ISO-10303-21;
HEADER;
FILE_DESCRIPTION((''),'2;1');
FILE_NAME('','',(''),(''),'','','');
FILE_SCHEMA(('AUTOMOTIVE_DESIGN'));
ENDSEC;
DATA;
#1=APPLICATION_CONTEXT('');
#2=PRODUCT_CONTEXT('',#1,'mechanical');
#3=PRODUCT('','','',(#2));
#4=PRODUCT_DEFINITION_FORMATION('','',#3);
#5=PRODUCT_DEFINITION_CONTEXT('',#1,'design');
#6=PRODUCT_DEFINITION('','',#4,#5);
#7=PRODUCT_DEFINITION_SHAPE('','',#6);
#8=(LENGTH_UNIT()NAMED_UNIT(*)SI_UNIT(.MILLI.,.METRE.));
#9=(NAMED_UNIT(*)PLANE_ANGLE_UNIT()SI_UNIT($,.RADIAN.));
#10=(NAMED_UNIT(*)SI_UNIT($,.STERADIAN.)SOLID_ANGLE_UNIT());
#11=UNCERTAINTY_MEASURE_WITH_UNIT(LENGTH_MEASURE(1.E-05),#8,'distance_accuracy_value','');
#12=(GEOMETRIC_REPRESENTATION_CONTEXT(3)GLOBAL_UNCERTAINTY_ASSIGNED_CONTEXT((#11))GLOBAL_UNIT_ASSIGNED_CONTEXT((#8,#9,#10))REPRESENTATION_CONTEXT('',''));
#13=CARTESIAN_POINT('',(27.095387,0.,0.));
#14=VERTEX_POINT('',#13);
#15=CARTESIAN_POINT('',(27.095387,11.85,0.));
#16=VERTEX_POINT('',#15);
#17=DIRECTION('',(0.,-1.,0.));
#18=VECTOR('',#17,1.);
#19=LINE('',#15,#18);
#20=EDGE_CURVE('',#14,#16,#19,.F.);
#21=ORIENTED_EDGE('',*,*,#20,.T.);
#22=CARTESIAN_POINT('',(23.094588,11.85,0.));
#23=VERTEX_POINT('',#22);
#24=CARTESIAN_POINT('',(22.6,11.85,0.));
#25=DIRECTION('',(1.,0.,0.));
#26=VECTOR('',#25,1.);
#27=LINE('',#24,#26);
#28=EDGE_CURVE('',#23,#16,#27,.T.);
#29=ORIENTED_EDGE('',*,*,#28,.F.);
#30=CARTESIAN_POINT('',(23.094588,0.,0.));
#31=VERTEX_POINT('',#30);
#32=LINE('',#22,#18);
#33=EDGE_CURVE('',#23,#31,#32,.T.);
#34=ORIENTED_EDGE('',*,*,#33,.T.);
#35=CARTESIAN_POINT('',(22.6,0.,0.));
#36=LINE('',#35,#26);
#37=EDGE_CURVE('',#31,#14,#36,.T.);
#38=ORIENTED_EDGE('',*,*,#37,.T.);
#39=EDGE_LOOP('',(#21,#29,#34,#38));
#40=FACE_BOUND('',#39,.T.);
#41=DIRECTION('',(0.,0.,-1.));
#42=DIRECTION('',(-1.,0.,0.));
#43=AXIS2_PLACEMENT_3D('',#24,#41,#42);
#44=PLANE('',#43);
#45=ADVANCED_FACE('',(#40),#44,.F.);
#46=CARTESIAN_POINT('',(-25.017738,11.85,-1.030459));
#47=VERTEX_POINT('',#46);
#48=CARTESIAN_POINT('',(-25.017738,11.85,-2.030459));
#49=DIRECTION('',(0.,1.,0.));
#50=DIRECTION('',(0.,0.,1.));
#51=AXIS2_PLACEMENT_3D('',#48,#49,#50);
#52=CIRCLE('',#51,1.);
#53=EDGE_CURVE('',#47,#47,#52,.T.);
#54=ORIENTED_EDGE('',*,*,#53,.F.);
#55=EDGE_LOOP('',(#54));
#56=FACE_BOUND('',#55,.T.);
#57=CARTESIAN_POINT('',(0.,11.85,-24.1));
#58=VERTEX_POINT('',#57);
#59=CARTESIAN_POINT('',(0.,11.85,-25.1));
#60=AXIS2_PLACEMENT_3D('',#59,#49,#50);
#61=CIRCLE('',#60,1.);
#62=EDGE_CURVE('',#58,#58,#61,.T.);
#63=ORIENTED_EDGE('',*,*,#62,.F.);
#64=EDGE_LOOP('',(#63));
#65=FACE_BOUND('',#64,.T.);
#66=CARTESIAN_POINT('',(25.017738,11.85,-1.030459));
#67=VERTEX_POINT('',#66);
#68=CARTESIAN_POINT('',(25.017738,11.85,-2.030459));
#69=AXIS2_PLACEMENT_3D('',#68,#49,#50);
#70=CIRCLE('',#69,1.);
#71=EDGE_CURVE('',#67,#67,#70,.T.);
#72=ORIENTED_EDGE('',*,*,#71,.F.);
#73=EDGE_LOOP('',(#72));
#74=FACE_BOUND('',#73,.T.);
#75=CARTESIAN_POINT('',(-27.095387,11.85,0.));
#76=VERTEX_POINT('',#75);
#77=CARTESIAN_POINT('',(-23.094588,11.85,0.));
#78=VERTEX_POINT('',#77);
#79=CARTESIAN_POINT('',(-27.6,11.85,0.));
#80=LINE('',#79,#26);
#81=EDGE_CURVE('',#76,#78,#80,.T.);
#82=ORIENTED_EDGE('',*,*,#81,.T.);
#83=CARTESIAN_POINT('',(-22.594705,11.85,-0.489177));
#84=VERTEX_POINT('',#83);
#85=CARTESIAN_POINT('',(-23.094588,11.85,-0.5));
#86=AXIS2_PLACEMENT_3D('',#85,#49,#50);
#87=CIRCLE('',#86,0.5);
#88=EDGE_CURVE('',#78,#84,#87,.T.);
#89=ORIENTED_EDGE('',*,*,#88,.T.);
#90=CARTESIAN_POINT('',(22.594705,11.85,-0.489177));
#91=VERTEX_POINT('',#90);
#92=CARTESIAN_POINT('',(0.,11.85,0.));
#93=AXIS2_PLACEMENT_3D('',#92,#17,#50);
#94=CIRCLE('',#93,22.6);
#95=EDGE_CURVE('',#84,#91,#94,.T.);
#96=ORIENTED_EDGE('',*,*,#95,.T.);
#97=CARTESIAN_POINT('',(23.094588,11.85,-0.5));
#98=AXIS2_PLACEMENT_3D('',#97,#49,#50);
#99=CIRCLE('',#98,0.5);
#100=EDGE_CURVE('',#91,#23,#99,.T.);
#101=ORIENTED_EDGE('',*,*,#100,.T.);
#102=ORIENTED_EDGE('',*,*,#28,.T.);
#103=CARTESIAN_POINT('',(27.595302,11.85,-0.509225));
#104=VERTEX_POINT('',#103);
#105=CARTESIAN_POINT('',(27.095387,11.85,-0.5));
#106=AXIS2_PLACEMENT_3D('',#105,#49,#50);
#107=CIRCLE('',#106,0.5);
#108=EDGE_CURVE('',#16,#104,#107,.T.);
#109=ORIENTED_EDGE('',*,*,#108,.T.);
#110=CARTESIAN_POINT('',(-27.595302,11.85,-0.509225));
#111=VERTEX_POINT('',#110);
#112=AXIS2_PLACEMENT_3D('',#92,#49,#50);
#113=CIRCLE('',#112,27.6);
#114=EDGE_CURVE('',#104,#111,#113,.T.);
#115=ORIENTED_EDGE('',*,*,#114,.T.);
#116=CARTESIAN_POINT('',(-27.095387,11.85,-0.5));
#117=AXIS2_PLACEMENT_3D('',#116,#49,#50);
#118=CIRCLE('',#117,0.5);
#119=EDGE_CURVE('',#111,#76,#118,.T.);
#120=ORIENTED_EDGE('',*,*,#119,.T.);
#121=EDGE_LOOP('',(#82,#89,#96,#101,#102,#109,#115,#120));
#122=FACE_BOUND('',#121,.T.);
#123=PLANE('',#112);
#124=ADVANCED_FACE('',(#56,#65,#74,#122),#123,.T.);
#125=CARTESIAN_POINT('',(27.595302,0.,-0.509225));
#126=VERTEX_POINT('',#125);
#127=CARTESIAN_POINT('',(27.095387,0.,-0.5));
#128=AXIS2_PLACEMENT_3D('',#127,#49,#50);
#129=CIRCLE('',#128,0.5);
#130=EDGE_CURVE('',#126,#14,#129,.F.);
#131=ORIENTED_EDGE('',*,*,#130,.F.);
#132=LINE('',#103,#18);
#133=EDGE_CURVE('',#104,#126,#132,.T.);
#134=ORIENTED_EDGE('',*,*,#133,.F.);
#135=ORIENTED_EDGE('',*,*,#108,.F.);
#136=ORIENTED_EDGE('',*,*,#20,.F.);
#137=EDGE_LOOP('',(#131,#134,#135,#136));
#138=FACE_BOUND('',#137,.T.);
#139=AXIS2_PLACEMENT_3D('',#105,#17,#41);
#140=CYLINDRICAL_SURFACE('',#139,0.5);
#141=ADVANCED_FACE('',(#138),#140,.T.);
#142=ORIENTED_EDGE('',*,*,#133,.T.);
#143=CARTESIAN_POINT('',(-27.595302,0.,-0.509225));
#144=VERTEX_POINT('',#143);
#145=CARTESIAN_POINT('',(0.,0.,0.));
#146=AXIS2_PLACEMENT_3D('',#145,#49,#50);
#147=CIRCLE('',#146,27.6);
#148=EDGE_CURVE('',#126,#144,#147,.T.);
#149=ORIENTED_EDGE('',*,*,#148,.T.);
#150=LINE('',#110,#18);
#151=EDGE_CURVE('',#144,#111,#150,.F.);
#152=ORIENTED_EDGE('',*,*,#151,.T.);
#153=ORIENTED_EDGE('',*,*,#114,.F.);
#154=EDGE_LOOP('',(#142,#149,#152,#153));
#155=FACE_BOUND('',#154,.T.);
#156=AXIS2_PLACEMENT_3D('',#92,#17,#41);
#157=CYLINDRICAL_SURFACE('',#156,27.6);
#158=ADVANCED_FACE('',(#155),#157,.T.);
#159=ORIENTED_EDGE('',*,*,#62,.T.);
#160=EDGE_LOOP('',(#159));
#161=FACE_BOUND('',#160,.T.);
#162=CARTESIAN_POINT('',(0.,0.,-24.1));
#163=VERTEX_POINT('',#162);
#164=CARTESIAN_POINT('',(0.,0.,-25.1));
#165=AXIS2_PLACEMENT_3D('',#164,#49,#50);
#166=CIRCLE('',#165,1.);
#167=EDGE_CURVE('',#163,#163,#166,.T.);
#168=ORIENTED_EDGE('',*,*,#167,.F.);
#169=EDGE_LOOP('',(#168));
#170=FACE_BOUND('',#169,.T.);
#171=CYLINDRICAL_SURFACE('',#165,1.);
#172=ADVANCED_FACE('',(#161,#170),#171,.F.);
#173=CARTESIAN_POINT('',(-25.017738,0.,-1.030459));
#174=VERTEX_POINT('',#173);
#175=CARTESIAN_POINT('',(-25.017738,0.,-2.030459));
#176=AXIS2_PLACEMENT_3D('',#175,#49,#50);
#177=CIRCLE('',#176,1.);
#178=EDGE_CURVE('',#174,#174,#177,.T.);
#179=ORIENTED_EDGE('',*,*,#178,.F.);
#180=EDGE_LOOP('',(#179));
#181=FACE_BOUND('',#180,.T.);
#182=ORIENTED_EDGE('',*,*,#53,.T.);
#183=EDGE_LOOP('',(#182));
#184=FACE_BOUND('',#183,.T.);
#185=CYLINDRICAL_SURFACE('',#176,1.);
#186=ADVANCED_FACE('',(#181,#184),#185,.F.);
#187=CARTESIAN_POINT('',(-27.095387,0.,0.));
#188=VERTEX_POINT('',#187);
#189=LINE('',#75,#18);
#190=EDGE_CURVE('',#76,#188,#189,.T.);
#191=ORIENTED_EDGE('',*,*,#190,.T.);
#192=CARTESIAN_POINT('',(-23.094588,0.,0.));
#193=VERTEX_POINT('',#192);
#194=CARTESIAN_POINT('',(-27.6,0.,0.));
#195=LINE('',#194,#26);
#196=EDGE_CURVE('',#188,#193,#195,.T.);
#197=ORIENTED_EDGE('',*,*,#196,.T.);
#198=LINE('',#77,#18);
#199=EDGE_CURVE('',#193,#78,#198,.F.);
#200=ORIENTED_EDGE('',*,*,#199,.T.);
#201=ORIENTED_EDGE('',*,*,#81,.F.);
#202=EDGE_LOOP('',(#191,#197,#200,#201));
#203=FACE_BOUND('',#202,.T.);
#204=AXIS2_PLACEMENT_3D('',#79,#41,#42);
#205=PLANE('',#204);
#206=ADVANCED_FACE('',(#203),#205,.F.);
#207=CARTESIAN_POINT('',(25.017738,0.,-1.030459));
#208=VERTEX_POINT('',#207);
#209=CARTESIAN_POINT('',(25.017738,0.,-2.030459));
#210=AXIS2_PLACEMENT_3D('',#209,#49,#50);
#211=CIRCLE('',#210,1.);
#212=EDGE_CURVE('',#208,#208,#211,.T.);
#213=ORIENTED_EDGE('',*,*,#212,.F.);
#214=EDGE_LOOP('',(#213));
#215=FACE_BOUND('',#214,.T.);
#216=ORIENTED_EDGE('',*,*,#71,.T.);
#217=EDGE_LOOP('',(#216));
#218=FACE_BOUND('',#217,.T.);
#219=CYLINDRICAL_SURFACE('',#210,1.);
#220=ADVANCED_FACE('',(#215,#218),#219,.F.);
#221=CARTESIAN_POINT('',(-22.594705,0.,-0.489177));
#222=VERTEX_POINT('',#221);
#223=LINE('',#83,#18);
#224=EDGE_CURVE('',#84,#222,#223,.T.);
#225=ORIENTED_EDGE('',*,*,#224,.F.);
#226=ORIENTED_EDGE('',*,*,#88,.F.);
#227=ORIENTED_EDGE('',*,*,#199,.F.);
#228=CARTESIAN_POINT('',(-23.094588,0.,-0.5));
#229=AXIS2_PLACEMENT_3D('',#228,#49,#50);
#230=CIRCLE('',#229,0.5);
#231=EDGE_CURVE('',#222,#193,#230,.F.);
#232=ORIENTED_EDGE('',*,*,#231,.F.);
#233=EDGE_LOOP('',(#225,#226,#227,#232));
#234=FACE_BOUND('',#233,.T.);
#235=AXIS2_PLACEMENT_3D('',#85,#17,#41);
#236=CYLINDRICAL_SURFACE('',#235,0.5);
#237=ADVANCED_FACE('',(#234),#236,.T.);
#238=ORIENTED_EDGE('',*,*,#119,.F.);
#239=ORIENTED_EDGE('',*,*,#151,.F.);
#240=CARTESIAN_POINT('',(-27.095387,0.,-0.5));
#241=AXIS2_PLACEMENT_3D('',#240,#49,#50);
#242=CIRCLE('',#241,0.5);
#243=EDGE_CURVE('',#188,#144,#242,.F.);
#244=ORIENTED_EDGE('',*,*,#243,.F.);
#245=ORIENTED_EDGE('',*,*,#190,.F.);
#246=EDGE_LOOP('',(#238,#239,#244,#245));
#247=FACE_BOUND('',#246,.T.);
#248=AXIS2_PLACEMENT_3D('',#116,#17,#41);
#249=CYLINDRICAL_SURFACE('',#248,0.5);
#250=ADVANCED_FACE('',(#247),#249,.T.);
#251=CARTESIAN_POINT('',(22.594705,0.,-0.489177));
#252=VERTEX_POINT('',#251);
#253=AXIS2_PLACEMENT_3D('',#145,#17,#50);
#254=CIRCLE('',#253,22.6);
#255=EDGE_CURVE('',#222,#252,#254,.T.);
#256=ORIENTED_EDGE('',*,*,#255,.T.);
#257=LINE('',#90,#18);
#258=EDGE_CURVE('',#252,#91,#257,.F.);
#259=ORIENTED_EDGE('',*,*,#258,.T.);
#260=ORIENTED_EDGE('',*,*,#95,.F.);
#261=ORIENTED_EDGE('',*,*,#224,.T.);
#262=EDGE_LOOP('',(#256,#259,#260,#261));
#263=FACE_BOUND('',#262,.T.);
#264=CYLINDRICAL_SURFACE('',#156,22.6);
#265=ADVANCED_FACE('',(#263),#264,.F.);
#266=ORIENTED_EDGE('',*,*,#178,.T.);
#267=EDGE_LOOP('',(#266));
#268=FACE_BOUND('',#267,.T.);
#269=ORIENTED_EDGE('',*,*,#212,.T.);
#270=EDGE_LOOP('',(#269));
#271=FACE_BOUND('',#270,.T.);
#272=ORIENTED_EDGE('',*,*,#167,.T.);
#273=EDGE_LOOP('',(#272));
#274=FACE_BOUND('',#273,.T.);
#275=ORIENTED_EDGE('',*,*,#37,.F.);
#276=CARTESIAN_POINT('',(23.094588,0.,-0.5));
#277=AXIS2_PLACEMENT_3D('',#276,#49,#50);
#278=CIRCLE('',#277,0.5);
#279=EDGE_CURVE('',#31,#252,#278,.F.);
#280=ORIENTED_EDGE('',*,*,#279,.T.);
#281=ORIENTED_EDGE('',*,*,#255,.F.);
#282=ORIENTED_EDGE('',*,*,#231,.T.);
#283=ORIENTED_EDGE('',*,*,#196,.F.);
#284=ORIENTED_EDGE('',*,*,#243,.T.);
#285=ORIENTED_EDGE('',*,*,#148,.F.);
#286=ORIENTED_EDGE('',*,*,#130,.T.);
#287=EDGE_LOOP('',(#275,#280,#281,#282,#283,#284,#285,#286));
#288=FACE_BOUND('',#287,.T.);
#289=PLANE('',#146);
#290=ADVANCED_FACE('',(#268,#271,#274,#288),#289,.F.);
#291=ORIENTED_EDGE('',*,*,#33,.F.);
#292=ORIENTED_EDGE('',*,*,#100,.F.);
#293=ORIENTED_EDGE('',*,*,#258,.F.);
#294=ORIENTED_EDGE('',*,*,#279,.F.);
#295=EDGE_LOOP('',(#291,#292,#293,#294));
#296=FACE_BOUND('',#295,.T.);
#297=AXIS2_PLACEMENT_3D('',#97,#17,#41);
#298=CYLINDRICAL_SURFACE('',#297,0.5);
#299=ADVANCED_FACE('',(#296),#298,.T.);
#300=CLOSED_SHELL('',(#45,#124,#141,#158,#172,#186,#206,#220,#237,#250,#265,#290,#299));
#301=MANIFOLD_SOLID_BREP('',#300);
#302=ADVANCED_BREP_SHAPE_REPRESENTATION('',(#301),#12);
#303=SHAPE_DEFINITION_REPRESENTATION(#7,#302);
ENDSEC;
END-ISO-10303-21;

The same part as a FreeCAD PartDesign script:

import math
import FreeCAD as App
import Part
import Sketcher
from FreeCAD import Vector


def edges_at(feature, points):
    """Names of the edges that pass closest to the given points."""
    edges = feature.Shape.Edges
    near = lambda p: min(range(len(edges)), key=lambda i: edges[i].distToShape(Part.Vertex(*p))[0])
    return sorted({f"Edge{near(p) + 1}" for p in points})

doc = App.newDocument("Part")
params = doc.addObject("Spreadsheet::Sheet", "Params")
for row, (alias, value) in enumerate([
    ("sketch1_radius", "22.6 mm"),
    ("sketch1_radius2", "27.6 mm"),
    ("pad1_length", "11.85 mm"),
    ("sketch2_diameter", "2 mm"),
    ("fillet_radius", "0.5 mm"),
], start=1):
    params.set(f"A{row}", alias)
    params.set(f"B{row}", "=" + value)
    params.setAlias(f"B{row}", alias)

body = doc.addObject("PartDesign::Body", "Body")

# Sketch on XZ plane
sketch1 = body.newObject("Sketcher::SketchObject", "Sketch")
sketch1.AttachmentSupport = (doc.getObject("XZ_Plane"), [""])
sketch1.MapMode = "FlatFace"
sketch1.addGeometry([
    Part.LineSegment(Vector(-27.6, 0, 0), Vector(-22.6, 0, 0)),
    Part.ArcOfCircle(Part.Circle(Vector(0, 0, 0), Vector(0, 0, 1), 22.6), math.radians(180), math.radians(360)),
    Part.LineSegment(Vector(22.6, 0, 0), Vector(27.6, 0, 0)),
    Part.ArcOfCircle(Part.Circle(Vector(0, 0, 0), Vector(0, 0, 1), 27.6), math.radians(180), math.radians(360)),
], False)
sketch1.addConstraint([
    Sketcher.Constraint("Coincident", 0, 2, 1, 1),
    Sketcher.Constraint("Coincident", 1, 2, 2, 1),
    Sketcher.Constraint("Coincident", 2, 2, 3, 2),
    Sketcher.Constraint("Coincident", 3, 1, 0, 1),
    Sketcher.Constraint("Horizontal", 0),
    Sketcher.Constraint("Horizontal", 2),
    Sketcher.Constraint("Coincident", 1, 3, -1, 1),
    Sketcher.Constraint("Coincident", 3, 3, -1, 1),
    Sketcher.Constraint("PointOnObject", 0, 2, -1),
    Sketcher.Constraint("PointOnObject", 1, 2, -1),
    Sketcher.Constraint("Radius", 1, 22.6),
    Sketcher.Constraint("Radius", 3, 27.6),
])
sketch1.setExpression("Constraints[10]", "Params.sketch1_radius")
sketch1.setExpression("Constraints[11]", "Params.sketch1_radius2")
pad1 = body.newObject("PartDesign::Pad", "Pad")
pad1.Profile = sketch1
pad1.setExpression("Length", "Params.pad1_length")
pad1.Reversed = True

# Sketch on XZ plane
sketch2 = body.newObject("Sketcher::SketchObject", "Sketch001")
sketch2.AttachmentSupport = (doc.getObject("XZ_Plane"), [""])
sketch2.MapMode = "FlatFace"
sketch2.AttachmentOffset = App.Placement(Vector(0, 0, -11.85), App.Rotation())
sketch2.addGeometry([
    Part.Circle(Vector(-25.017738, -2.030459, 0), Vector(0, 0, 1), 1),
    Part.Circle(Vector(25.017738, -2.030459, 0), Vector(0, 0, 1), 1),
    Part.Circle(Vector(0, -25.1, 0), Vector(0, 0, 1), 1),
], False)
sketch2.addConstraint([
    Sketcher.Constraint("Equal", 0, 1),
    Sketcher.Constraint("Equal", 1, 2),
    Sketcher.Constraint("Symmetric", 0, 3, 1, 3, -2),
    Sketcher.Constraint("PointOnObject", 2, 3, -2),
    Sketcher.Constraint("Diameter", 0, 2.0),
    Sketcher.Constraint("DistanceY", 2, 3, -1, 1, 25.1),
    Sketcher.Constraint("DistanceX", 0, 3, -1, 1, 25.017738),
    Sketcher.Constraint("DistanceY", 0, 3, -1, 1, 2.030459),
])
sketch2.setExpression("Constraints[4]", "Params.sketch2_diameter")
pocket1 = body.newObject("PartDesign::Pocket", "Pocket")
pocket1.Profile = sketch2
pocket1.Type = "ThroughAll"
pocket1.Reversed = True
doc.recompute()

fillet = body.newObject("PartDesign::Fillet", "Fillet")
fillet.Base = (pocket1, edges_at(pocket1, [
    (-22.6, 5.925, 0),
    (-27.6, 5.925, 0),
    (27.6, 5.925, 0),
    (22.6, 5.925, 0),
]))
fillet.setExpression("Radius", "Params.fillet_radius")

doc.recompute()
